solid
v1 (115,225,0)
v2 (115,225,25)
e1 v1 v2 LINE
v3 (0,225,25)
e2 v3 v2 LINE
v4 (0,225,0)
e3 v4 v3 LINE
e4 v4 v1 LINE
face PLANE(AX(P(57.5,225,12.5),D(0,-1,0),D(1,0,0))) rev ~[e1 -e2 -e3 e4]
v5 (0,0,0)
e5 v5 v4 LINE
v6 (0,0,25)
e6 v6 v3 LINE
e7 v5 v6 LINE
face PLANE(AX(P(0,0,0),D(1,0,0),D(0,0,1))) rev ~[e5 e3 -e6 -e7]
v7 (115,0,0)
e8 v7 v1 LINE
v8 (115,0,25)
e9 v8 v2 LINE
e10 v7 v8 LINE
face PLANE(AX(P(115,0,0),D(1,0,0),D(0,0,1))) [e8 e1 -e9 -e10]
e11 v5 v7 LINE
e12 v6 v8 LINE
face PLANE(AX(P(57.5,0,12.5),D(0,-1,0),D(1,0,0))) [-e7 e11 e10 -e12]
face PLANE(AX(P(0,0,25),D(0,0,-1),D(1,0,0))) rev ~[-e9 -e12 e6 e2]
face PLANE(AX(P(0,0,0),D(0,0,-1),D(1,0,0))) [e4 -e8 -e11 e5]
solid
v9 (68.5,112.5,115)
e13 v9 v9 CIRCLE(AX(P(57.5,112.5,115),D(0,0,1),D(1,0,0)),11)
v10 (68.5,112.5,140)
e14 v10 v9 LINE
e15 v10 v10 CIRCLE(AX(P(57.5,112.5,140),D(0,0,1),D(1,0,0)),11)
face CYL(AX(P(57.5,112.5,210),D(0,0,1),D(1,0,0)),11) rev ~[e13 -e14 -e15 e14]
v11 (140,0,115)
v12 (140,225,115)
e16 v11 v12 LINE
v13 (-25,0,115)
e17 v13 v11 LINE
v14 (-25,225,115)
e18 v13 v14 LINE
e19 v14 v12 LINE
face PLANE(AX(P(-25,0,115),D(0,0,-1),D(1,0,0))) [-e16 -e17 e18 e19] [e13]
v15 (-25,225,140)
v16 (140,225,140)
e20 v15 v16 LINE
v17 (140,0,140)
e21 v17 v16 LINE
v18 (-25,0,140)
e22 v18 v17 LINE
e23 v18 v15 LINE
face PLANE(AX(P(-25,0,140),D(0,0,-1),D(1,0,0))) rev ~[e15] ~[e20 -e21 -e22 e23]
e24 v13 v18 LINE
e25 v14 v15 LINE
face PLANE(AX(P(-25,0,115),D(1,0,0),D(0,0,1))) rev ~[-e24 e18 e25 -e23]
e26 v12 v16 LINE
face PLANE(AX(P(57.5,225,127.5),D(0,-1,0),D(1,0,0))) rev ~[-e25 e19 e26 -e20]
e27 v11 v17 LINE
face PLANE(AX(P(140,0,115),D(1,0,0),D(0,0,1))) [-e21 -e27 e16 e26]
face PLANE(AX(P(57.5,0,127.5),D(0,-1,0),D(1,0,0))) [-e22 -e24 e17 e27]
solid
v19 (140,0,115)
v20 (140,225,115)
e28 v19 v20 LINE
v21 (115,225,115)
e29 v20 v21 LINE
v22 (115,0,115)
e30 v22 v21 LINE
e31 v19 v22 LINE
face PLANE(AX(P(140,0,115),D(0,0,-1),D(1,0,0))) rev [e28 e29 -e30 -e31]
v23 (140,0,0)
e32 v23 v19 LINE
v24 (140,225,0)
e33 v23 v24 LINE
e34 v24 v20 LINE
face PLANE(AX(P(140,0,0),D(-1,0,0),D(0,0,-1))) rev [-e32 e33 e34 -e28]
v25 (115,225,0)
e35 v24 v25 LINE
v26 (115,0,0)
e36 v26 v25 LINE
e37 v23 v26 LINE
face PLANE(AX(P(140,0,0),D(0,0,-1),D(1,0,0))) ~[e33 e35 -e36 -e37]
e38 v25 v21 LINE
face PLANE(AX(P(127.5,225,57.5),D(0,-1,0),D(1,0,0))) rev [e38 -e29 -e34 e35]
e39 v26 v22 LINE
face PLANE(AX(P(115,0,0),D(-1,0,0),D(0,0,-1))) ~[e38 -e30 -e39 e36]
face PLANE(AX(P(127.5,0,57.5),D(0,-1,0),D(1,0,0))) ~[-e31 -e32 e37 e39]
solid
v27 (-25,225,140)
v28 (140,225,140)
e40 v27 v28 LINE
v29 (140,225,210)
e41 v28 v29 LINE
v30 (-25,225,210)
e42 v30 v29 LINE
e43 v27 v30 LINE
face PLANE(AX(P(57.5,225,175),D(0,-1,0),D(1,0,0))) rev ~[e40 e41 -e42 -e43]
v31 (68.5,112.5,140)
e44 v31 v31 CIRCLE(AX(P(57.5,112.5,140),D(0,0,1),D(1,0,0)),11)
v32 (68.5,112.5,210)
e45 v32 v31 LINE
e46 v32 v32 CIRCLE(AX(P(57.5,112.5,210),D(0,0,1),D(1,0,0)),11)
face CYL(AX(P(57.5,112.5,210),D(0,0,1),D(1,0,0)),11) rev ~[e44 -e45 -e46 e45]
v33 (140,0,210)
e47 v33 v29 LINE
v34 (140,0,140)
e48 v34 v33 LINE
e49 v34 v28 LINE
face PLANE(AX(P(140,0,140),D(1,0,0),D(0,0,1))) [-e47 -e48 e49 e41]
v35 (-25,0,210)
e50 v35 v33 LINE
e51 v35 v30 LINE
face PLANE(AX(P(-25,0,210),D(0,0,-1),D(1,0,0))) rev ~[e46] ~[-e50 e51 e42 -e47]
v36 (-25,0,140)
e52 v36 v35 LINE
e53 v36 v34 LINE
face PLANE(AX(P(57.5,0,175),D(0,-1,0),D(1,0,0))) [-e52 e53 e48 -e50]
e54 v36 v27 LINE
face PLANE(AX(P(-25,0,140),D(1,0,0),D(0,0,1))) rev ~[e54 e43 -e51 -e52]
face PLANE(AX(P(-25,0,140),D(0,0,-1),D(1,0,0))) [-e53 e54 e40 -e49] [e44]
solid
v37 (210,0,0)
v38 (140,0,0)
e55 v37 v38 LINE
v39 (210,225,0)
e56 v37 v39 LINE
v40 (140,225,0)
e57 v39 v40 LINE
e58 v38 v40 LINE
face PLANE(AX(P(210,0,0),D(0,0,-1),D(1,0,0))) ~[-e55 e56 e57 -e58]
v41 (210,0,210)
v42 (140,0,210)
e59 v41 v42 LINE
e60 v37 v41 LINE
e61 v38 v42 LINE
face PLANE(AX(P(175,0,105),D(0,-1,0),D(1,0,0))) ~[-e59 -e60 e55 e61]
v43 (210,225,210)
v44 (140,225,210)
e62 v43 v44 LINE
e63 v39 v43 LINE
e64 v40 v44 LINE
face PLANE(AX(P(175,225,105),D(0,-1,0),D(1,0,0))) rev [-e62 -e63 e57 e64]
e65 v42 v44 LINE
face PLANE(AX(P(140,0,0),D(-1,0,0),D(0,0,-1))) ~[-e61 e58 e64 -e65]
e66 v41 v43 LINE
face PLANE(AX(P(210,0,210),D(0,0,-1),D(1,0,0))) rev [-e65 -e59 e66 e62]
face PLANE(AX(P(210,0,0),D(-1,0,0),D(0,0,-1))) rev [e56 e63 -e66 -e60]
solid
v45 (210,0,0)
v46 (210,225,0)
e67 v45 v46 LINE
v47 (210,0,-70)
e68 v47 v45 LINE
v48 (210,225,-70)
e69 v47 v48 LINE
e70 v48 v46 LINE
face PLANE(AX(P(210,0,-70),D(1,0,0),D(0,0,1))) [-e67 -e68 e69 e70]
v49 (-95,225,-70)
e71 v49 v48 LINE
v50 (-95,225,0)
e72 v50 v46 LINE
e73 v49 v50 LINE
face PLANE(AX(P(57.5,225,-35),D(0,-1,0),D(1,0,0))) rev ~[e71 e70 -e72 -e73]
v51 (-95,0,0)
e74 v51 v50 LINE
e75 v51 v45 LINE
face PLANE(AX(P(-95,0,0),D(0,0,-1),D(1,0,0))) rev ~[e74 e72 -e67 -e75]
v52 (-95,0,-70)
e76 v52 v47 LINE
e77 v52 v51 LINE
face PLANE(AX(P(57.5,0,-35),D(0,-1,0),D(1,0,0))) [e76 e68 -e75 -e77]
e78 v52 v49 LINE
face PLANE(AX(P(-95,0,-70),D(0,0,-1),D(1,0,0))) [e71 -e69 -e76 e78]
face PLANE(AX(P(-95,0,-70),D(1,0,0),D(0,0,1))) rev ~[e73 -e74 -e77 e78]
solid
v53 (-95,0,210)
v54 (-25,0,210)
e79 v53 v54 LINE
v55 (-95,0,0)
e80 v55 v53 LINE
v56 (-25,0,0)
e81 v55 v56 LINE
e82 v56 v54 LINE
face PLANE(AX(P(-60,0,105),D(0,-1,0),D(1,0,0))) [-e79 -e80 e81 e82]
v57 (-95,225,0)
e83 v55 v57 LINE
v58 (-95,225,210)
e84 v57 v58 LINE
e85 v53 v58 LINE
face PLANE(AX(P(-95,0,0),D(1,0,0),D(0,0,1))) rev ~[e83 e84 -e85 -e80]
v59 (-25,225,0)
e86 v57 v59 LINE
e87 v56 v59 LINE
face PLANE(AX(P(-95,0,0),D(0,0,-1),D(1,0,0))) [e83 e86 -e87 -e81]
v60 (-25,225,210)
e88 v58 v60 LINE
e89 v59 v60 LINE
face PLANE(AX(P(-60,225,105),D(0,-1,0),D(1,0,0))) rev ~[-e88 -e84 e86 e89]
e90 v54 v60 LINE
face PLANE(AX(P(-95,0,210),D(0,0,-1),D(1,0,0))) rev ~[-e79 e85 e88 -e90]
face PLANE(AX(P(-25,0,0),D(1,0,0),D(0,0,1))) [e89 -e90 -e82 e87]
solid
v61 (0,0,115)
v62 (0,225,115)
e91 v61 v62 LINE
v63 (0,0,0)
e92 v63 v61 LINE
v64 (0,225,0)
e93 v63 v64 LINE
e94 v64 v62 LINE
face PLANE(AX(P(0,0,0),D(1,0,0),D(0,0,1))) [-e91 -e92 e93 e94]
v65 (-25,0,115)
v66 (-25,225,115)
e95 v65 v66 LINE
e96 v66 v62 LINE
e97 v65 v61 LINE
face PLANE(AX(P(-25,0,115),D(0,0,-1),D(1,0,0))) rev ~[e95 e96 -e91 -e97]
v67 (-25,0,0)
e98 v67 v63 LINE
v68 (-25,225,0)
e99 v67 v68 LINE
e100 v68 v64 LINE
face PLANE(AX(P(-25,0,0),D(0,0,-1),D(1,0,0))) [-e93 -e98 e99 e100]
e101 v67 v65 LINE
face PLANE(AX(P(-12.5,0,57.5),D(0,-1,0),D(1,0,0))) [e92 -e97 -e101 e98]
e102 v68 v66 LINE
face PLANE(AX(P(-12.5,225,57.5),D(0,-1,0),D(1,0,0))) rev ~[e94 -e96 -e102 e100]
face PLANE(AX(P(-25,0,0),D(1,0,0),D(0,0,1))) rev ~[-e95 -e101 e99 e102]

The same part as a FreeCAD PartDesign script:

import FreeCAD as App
import Part
import Sketcher
Q = App.Units.Quantity

doc = App.newDocument("Part")
params = doc.addObject("Spreadsheet::Sheet", "Params")
for row, (alias, value) in enumerate([
    ("sketch1_width", "115 mm"),
    ("sketch1_height", "25 mm"),
    ("pad1_length", "225 mm"),
    ("sketch2_width", "25 mm"),
    ("sketch2_height", "115 mm"),
    ("pad2_length", "225 mm"),
    ("sketch3_width", "165 mm"),
    ("sketch3_height", "25 mm"),
    ("pad3_length", "225 mm"),
    ("sketch4_width", "305 mm"),
    ("sketch4_height", "70 mm"),
    ("pad4_length", "225 mm"),
    ("sketch5_width", "70 mm"),
    ("sketch5_height", "210 mm"),
    ("pad5_length", "225 mm"),
    ("sketch6_width", "165 mm"),
    ("sketch6_height", "70 mm"),
    ("pad6_length", "225 mm"),
    ("sketch7_diameter", "22 mm"),
    ("pad7_length", "95 mm"),
], start=1):
    params.set(f"A{row}", alias)
    params.set(f"B{row}", "=" + value)
    params.setAlias(f"B{row}", alias)

body = doc.addObject("PartDesign::Body", "Body")

# Sketch on XZ plane
sketch1 = body.newObject("Sketcher::SketchObject", "Sketch")
sketch1.AttachmentSupport = (doc.getObject("XZ_Plane"), [""])
sketch1.MapMode = "FlatFace"
sketch1.addGeometry([
    Part.LineSegment(App.Vector(0, 25, 0), App.Vector(0, 0, 0)),
    Part.LineSegment(App.Vector(0, 0, 0), App.Vector(115, 0, 0)),
    Part.LineSegment(App.Vector(115, 0, 0), App.Vector(115, 25, 0)),
    Part.LineSegment(App.Vector(115, 25, 0), App.Vector(0, 25, 0)),
], False)
sketch1.addConstraint([
    Sketcher.Constraint("Coincident", 0, 2, 1, 1),
    Sketcher.Constraint("Coincident", 1, 2, 2, 1),
    Sketcher.Constraint("Coincident", 2, 2, 3, 1),
    Sketcher.Constraint("Coincident", 3, 2, 0, 1),
    Sketcher.Constraint("Vertical", 0),
    Sketcher.Constraint("Horizontal", 1),
    Sketcher.Constraint("Vertical", 2),
    Sketcher.Constraint("Horizontal", 3),
    Sketcher.Constraint("Coincident", 0, 2, -1, 1),
    Sketcher.Constraint("DistanceX", 1, 1, 1, 2, Q("115 mm")),
    Sketcher.Constraint("DistanceY", 0, 2, 0, 1, Q("25 mm")),
])
sketch1.setExpression("Constraints[9]", "Params.sketch1_width")
sketch1.setExpression("Constraints[10]", "Params.sketch1_height")
pad1 = body.newObject("PartDesign::Pad", "Pad")
pad1.Profile = sketch1
pad1.setExpression("Length", "Params.pad1_length")
pad1.Reversed = True
body2 = doc.addObject("PartDesign::Body", "Body001")

# Sketch on XZ plane
sketch2 = body2.newObject("Sketcher::SketchObject", "Sketch001")
sketch2.AttachmentSupport = (doc.getObject("XZ_Plane001"), [""])
sketch2.MapMode = "FlatFace"
sketch2.addGeometry([
    Part.LineSegment(App.Vector(-25, 115, 0), App.Vector(-25, 0, 0)),
    Part.LineSegment(App.Vector(-25, 0, 0), App.Vector(0, 0, 0)),
    Part.LineSegment(App.Vector(0, 0, 0), App.Vector(0, 115, 0)),
    Part.LineSegment(App.Vector(0, 115, 0), App.Vector(-25, 115, 0)),
], False)
sketch2.addConstraint([
    Sketcher.Constraint("Coincident", 0, 2, 1, 1),
    Sketcher.Constraint("Coincident", 1, 2, 2, 1),
    Sketcher.Constraint("Coincident", 2, 2, 3, 1),
    Sketcher.Constraint("Coincident", 3, 2, 0, 1),
    Sketcher.Constraint("Vertical", 0),
    Sketcher.Constraint("Horizontal", 1),
    Sketcher.Constraint("Vertical", 2),
    Sketcher.Constraint("Horizontal", 3),
    Sketcher.Constraint("Coincident", 1, 2, -1, 1),
    Sketcher.Constraint("DistanceX", 1, 1, 1, 2, Q("25 mm")),
    Sketcher.Constraint("DistanceY", 0, 2, 0, 1, Q("115 mm")),
])
sketch2.setExpression("Constraints[9]", "Params.sketch2_width")
sketch2.setExpression("Constraints[10]", "Params.sketch2_height")
pad2 = body2.newObject("PartDesign::Pad", "Pad001")
pad2.Profile = sketch2
pad2.setExpression("Length", "Params.pad2_length")
pad2.Reversed = True
body3 = doc.addObject("PartDesign::Body", "Body002")
doc.recompute()

mirroring = doc.addObject("Part::Mirroring", "Mirroring")
mirroring.Source = body2
mirroring.Base = App.Vector(57.5, 112.5, 12.5)
mirroring.Normal = App.Vector(1, 0, 0)
body3.BaseFeature = mirroring
doc.recompute()
body4 = doc.addObject("PartDesign::Body", "Body003")

# Sketch on XZ plane
sketch3 = body4.newObject("Sketcher::SketchObject", "Sketch002")
sketch3.AttachmentSupport = (doc.getObject("XZ_Plane003"), [""])
sketch3.MapMode = "FlatFace"
sketch3.addGeometry([
    Part.LineSegment(App.Vector(-25, 140, 0), App.Vector(-25, 115, 0)),
    Part.LineSegment(App.Vector(-25, 115, 0), App.Vector(140, 115, 0)),
    Part.LineSegment(App.Vector(140, 115, 0), App.Vector(140, 140, 0)),
    Part.LineSegment(App.Vector(140, 140, 0), App.Vector(-25, 140, 0)),
], False)
sketch3.addConstraint([
    Sketcher.Constraint("Coincident", 0, 2, 1, 1),
    Sketcher.Constraint("Coincident", 1, 2, 2, 1),
    Sketcher.Constraint("Coincident", 2, 2, 3, 1),
    Sketcher.Constraint("Coincident", 3, 2, 0, 1),
    Sketcher.Constraint("Vertical", 0),
    Sketcher.Constraint("Horizontal", 1),
    Sketcher.Constraint("Vertical", 2),
    Sketcher.Constraint("Horizontal", 3),
    Sketcher.Constraint("DistanceX", 1, 1, 1, 2, Q("165 mm")),
    Sketcher.Constraint("DistanceY", 0, 2, 0, 1, Q("25 mm")),
    Sketcher.Constraint("DistanceX", 0, 2, -1, 1, Q("25 mm")),
    Sketcher.Constraint("DistanceY", -1, 1, 0, 2, Q("115 mm")),
])
sketch3.setExpression("Constraints[8]", "Params.sketch3_width")
sketch3.setExpression("Constraints[9]", "Params.sketch3_height")
pad3 = body4.newObject("PartDesign::Pad", "Pad002")
pad3.Profile = sketch3
pad3.setExpression("Length", "Params.pad3_length")
pad3.Reversed = True
body5 = doc.addObject("PartDesign::Body", "Body004")

# Sketch on XZ plane
sketch4 = body5.newObject("Sketcher::SketchObject", "Sketch003")
sketch4.AttachmentSupport = (doc.getObject("XZ_Plane004"), [""])
sketch4.MapMode = "FlatFace"
sketch4.addGeometry([
    Part.LineSegment(App.Vector(-95, 0, 0), App.Vector(-95, -70, 0)),
    Part.LineSegment(App.Vector(-95, -70, 0), App.Vector(210, -70, 0)),
    Part.LineSegment(App.Vector(210, -70, 0), App.Vector(210, 0, 0)),
    Part.LineSegment(App.Vector(210, 0, 0), App.Vector(-95, 0, 0)),
], False)
sketch4.addConstraint([
    Sketcher.Constraint("Coincident", 0, 2, 1, 1),
    Sketcher.Constraint("Coincident", 1, 2, 2, 1),
    Sketcher.Constraint("Coincident", 2, 2, 3, 1),
    Sketcher.Constraint("Coincident", 3, 2, 0, 1),
    Sketcher.Constraint("Vertical", 0),
    Sketcher.Constraint("Horizontal", 1),
    Sketcher.Constraint("Vertical", 2),
    Sketcher.Constraint("Horizontal", 3),
    Sketcher.Constraint("PointOnObject", 2, 2, -1),
    Sketcher.Constraint("DistanceX", 1, 1, 1, 2, Q("305 mm")),
    Sketcher.Constraint("DistanceY", 0, 2, 0, 1, Q("70 mm")),
    Sketcher.Constraint("DistanceX", 0, 2, -1, 1, Q("95 mm")),
])
sketch4.setExpression("Constraints[9]", "Params.sketch4_width")
sketch4.setExpression("Constraints[10]", "Params.sketch4_height")
pad4 = body5.newObject("PartDesign::Pad", "Pad003")
pad4.Profile = sketch4
pad4.setExpression("Length", "Params.pad4_length")
pad4.Reversed = True
body6 = doc.addObject("PartDesign::Body", "Body005")

# Sketch on XZ plane
sketch5 = body6.newObject("Sketcher::SketchObject", "Sketch004")
sketch5.AttachmentSupport = (doc.getObject("XZ_Plane005"), [""])
sketch5.MapMode = "FlatFace"
sketch5.addGeometry([
    Part.LineSegment(App.Vector(-95, 210, 0), App.Vector(-95, 0, 0)),
    Part.LineSegment(App.Vector(-95, 0, 0), App.Vector(-25, 0, 0)),
    Part.LineSegment(App.Vector(-25, 0, 0), App.Vector(-25, 210, 0)),
    Part.LineSegment(App.Vector(-25, 210, 0), App.Vector(-95, 210, 0)),
], False)
sketch5.addConstraint([
    Sketcher.Constraint("Coincident", 0, 2, 1, 1),
    Sketcher.Constraint("Coincident", 1, 2, 2, 1),
    Sketcher.Constraint("Coincident", 2, 2, 3, 1),
    Sketcher.Constraint("Coincident", 3, 2, 0, 1),
    Sketcher.Constraint("Vertical", 0),
    Sketcher.Constraint("Horizontal", 1),
    Sketcher.Constraint("Vertical", 2),
    Sketcher.Constraint("Horizontal", 3),
    Sketcher.Constraint("PointOnObject", 0, 2, -1),
    Sketcher.Constraint("DistanceX", 1, 1, 1, 2, Q("70 mm")),
    Sketcher.Constraint("DistanceY", 0, 2, 0, 1, Q("210 mm")),
    Sketcher.Constraint("DistanceX", 0, 2, -1, 1, Q("95 mm")),
])
sketch5.setExpression("Constraints[9]", "Params.sketch5_width")
sketch5.setExpression("Constraints[10]", "Params.sketch5_height")
pad5 = body6.newObject("PartDesign::Pad", "Pad004")
pad5.Profile = sketch5
pad5.setExpression("Length", "Params.pad5_length")
pad5.Reversed = True
body7 = doc.addObject("PartDesign::Body", "Body006")
doc.recompute()

mirroring2 = doc.addObject("Part::Mirroring", "Mirroring001")
mirroring2.Source = body6
mirroring2.Base = App.Vector(57.5, 112.5, 12.5)
mirroring2.Normal = App.Vector(1, 0, 0)
body7.BaseFeature = mirroring2
doc.recompute()
body8 = doc.addObject("PartDesign::Body", "Body007")

# Sketch on XZ plane
sketch6 = body8.newObject("Sketcher::SketchObject", "Sketch005")
sketch6.AttachmentSupport = (doc.getObject("XZ_Plane007"), [""])
sketch6.MapMode = "FlatFace"
sketch6.addGeometry([
    Part.LineSegment(App.Vector(-25, 210, 0), App.Vector(-25, 140, 0)),
    Part.LineSegment(App.Vector(-25, 140, 0), App.Vector(140, 140, 0)),
    Part.LineSegment(App.Vector(140, 140, 0), App.Vector(140, 210, 0)),
    Part.LineSegment(App.Vector(140, 210, 0), App.Vector(-25, 210, 0)),
], False)
sketch6.addConstraint([
    Sketcher.Constraint("Coincident", 0, 2, 1, 1),
    Sketcher.Constraint("Coincident", 1, 2, 2, 1),
    Sketcher.Constraint("Coincident", 2, 2, 3, 1),
    Sketcher.Constraint("Coincident", 3, 2, 0, 1),
    Sketcher.Constraint("Vertical", 0),
    Sketcher.Constraint("Horizontal", 1),
    Sketcher.Constraint("Vertical", 2),
    Sketcher.Constraint("Horizontal", 3),
    Sketcher.Constraint("DistanceX", 1, 1, 1, 2, Q("165 mm")),
    Sketcher.Constraint("DistanceY", 0, 2, 0, 1, Q("70 mm")),
    Sketcher.Constraint("DistanceX", 0, 2, -1, 1, Q("25 mm")),
    Sketcher.Constraint("DistanceY", -1, 1, 0, 2, Q("140 mm")),
])
sketch6.setExpression("Constraints[8]", "Params.sketch6_width")
sketch6.setExpression("Constraints[9]", "Params.sketch6_height")
pad6 = body8.newObject("PartDesign::Pad", "Pad005")
pad6.Profile = sketch6
pad6.setExpression("Length", "Params.pad6_length")
pad6.Reversed = True
body9 = doc.addObject("PartDesign::Body", "Body008")

# Sketch on XY plane
sketch7 = body9.newObject("Sketcher::SketchObject", "Sketch006")
sketch7.AttachmentSupport = (doc.getObject("XY_Plane008"), [""])
sketch7.MapMode = "FlatFace"
sketch7.AttachmentOffset = App.Placement(App.Vector(0, 0, 210), App.Rotation())
sketch7.addGeometry(Part.Circle(App.Vector(58, 112, 0), App.Vector(0, 0, 1), 11), False)
sketch7.addConstraint([
    Sketcher.Constraint("Diameter", 0, Q("22 mm")),
    Sketcher.Constraint("DistanceX", -1, 1, 0, 3, Q("57.5 mm")),
    Sketcher.Constraint("DistanceY", -1, 1, 0, 3, Q("112.5 mm")),
])
sketch7.setExpression("Constraints[0]", "Params.sketch7_diameter")
pad7 = body9.newObject("PartDesign::Pad", "Pad006")
pad7.Profile = sketch7
pad7.setExpression("Length", "Params.pad7_length")
pad7.Reversed = True
doc.recompute()

body10 = doc.addObject("PartDesign::Body", "Body009")
body10.BaseFeature = body9
boolean = body4.newObject("PartDesign::Boolean", "Boolean")
boolean.Type = "Cut"
boolean.addObjects([body10])
doc.recompute()

boolean2 = body8.newObject("PartDesign::Boolean", "Boolean001")
boolean2.Type = "Cut"
boolean2.addObjects([body9])
mirroring.Visibility = False
mirroring2.Visibility = False

doc.recompute()
